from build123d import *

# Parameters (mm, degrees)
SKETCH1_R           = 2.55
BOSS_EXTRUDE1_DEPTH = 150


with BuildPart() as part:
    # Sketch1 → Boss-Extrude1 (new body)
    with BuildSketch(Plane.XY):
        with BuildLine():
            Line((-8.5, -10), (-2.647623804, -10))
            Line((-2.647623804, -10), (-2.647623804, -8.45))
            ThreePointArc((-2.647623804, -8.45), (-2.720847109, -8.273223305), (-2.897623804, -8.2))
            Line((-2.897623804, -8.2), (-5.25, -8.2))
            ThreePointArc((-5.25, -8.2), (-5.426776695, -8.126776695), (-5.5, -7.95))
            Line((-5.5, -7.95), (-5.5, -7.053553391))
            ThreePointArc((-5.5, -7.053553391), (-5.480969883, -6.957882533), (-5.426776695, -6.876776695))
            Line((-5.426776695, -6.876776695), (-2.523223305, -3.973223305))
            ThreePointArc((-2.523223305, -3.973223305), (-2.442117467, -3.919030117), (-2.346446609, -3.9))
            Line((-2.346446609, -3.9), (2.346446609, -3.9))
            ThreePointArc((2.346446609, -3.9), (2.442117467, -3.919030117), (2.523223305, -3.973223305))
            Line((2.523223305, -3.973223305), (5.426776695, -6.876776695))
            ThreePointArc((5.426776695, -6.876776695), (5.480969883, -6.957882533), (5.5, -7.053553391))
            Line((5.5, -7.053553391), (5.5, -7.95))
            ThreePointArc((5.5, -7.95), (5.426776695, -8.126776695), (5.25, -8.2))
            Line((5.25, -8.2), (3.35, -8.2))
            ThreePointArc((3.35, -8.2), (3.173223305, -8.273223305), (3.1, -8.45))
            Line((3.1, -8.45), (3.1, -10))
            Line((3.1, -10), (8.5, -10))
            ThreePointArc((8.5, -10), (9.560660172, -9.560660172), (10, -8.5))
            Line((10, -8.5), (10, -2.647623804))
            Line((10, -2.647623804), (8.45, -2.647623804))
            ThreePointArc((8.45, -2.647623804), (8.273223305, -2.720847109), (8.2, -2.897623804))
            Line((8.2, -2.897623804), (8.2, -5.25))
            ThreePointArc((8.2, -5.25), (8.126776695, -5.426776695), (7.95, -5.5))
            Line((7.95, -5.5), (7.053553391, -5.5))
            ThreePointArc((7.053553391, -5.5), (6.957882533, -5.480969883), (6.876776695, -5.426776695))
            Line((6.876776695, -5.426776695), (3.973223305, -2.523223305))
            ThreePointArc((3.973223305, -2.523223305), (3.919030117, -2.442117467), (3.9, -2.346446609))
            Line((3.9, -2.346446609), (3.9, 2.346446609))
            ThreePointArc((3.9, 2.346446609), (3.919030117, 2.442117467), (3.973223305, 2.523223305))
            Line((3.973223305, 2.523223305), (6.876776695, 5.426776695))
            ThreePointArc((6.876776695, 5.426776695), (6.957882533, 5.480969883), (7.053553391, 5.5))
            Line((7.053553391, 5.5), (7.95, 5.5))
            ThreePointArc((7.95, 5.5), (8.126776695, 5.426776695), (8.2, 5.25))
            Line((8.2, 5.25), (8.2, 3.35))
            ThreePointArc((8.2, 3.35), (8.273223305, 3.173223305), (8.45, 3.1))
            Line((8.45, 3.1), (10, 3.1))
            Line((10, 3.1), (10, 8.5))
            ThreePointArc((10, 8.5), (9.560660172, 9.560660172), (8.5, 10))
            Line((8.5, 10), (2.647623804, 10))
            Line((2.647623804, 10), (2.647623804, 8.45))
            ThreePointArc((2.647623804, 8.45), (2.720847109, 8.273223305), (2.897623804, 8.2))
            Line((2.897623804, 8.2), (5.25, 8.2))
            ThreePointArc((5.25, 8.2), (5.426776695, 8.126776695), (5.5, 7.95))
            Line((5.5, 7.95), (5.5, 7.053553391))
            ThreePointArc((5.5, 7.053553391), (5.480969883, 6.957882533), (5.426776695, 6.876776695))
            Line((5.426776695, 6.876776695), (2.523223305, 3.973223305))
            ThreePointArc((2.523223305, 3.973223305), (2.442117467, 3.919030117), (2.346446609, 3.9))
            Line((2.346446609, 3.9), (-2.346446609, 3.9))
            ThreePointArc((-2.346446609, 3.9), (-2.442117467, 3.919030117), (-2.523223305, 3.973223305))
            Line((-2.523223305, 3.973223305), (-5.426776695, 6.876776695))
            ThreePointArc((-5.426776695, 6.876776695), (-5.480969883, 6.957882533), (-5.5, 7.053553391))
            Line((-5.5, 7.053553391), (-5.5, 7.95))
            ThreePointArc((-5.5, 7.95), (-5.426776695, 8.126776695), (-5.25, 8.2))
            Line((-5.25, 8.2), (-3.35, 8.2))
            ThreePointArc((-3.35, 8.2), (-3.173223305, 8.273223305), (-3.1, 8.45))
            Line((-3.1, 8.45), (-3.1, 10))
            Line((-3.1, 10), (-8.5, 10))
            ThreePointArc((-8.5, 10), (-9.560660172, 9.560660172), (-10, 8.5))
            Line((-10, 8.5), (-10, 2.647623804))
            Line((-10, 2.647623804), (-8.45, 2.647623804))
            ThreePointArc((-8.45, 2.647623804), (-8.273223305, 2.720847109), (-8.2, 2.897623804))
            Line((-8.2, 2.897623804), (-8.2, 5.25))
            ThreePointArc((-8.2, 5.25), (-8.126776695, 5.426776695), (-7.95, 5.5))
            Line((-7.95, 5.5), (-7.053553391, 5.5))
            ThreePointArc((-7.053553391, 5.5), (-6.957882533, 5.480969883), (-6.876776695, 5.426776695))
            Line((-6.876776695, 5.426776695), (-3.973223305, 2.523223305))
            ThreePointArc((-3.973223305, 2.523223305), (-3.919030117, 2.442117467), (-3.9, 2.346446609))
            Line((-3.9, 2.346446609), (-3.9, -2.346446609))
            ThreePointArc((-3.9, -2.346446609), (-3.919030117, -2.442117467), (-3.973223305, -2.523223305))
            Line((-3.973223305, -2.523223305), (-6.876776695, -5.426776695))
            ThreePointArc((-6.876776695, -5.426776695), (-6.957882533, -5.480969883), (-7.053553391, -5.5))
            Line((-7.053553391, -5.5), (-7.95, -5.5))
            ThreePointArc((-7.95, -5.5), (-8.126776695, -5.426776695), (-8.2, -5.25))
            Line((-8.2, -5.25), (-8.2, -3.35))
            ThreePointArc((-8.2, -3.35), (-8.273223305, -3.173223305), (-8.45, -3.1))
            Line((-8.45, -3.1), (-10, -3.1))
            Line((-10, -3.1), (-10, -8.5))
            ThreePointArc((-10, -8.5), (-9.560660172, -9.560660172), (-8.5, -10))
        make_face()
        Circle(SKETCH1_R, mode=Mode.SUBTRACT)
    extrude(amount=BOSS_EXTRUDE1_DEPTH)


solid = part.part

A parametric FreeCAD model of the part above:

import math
import FreeCAD as App
import Part
import Sketcher
Q = App.Units.Quantity

doc = App.newDocument("Part")
body = doc.addObject("PartDesign::Body", "Body")

sketch1 = doc.addObject("Sketcher::SketchObject", "Sketch")
body.addObject(sketch1)
sketch1.AttachmentSupport = (doc.XY_Plane, [""])
sketch1.MapMode = "FlatFace"
sketch1.addGeometry([
    Part.LineSegment(App.Vector(-8.5, -10, 0), App.Vector(-2.65, -10, 0)),
    Part.LineSegment(App.Vector(-2.65, -10, 0), App.Vector(-2.65, -8.45, 0)),
    Part.ArcOfCircle(Part.Circle(App.Vector(-2.9, -8.45, 0), App.Vector(0, 0, 1), 0.25), math.radians(0), math.radians(90)),
    Part.LineSegment(App.Vector(-2.9, -8.2, 0), App.Vector(-5.25, -8.2, 0)),
    Part.ArcOfCircle(Part.Circle(App.Vector(-5.25, -7.95, 0), App.Vector(0, 0, 1), 0.25), math.radians(-180), math.radians(-90)),
    Part.LineSegment(App.Vector(-5.5, -7.95, 0), App.Vector(-5.5, -7.05, 0)),
    Part.ArcOfCircle(Part.Circle(App.Vector(-5.25, -7.05, 0), App.Vector(0, 0, 1), 0.25), math.radians(135), math.radians(180)),
    Part.LineSegment(App.Vector(-5.43, -6.88, 0), App.Vector(-2.52, -3.97, 0)),
    Part.ArcOfCircle(Part.Circle(App.Vector(-2.35, -4.15, 0), App.Vector(0, 0, 1), 0.25), math.radians(90), math.radians(135)),
    Part.LineSegment(App.Vector(-2.35, -3.9, 0), App.Vector(2.35, -3.9, 0)),
    Part.ArcOfCircle(Part.Circle(App.Vector(2.35, -4.15, 0), App.Vector(0, 0, 1), 0.25), math.radians(45), math.radians(90)),
    Part.LineSegment(App.Vector(2.52, -3.97, 0), App.Vector(5.43, -6.88, 0)),
    Part.ArcOfCircle(Part.Circle(App.Vector(5.25, -7.05, 0), App.Vector(0, 0, 1), 0.25), math.radians(0), math.radians(45)),
    Part.LineSegment(App.Vector(5.5, -7.05, 0), App.Vector(5.5, -7.95, 0)),
    Part.ArcOfCircle(Part.Circle(App.Vector(5.25, -7.95, 0), App.Vector(0, 0, 1), 0.25), math.radians(-90), math.radians(0)),
    Part.LineSegment(App.Vector(5.25, -8.2, 0), App.Vector(3.35, -8.2, 0)),
    Part.ArcOfCircle(Part.Circle(App.Vector(3.35, -8.45, 0), App.Vector(0, 0, 1), 0.25), math.radians(90), math.radians(180)),
    Part.LineSegment(App.Vector(3.1, -8.45, 0), App.Vector(3.1, -10, 0)),
    Part.LineSegment(App.Vector(3.1, -10, 0), App.Vector(8.5, -10, 0)),
    Part.ArcOfCircle(Part.Circle(App.Vector(8.5, -8.5, 0), App.Vector(0, 0, 1), 1.5), math.radians(-90), math.radians(0)),
    Part.LineSegment(App.Vector(10, -8.5, 0), App.Vector(10, -2.65, 0)),
    Part.LineSegment(App.Vector(10, -2.65, 0), App.Vector(8.45, -2.65, 0)),
    Part.ArcOfCircle(Part.Circle(App.Vector(8.45, -2.9, 0), App.Vector(0, 0, 1), 0.25), math.radians(90), math.radians(180)),
    Part.LineSegment(App.Vector(8.2, -2.9, 0), App.Vector(8.2, -5.25, 0)),
    Part.ArcOfCircle(Part.Circle(App.Vector(7.95, -5.25, 0), App.Vector(0, 0, 1), 0.25), math.radians(-90), math.radians(0)),
    Part.LineSegment(App.Vector(7.95, -5.5, 0), App.Vector(7.05, -5.5, 0)),
    Part.ArcOfCircle(Part.Circle(App.Vector(7.05, -5.25, 0), App.Vector(0, 0, 1), 0.25), math.radians(-135), math.radians(-90)),
    Part.LineSegment(App.Vector(6.88, -5.43, 0), App.Vector(3.97, -2.52, 0)),
    Part.ArcOfCircle(Part.Circle(App.Vector(4.15, -2.35, 0), App.Vector(0, 0, 1), 0.25), math.radians(-180), math.radians(-135)),
    Part.LineSegment(App.Vector(3.9, -2.35, 0), App.Vector(3.9, 2.35, 0)),
    Part.ArcOfCircle(Part.Circle(App.Vector(4.15, 2.35, 0), App.Vector(0, 0, 1), 0.25), math.radians(135), math.radians(180)),
    Part.LineSegment(App.Vector(3.97, 2.52, 0), App.Vector(6.88, 5.43, 0)),
    Part.ArcOfCircle(Part.Circle(App.Vector(7.05, 5.25, 0), App.Vector(0, 0, 1), 0.25), math.radians(90), math.radians(135)),
    Part.LineSegment(App.Vector(7.05, 5.5, 0), App.Vector(7.95, 5.5, 0)),
    Part.ArcOfCircle(Part.Circle(App.Vector(7.95, 5.25, 0), App.Vector(0, 0, 1), 0.25), math.radians(0), math.radians(90)),
    Part.LineSegment(App.Vector(8.2, 5.25, 0), App.Vector(8.2, 3.35, 0)),
    Part.ArcOfCircle(Part.Circle(App.Vector(8.45, 3.35, 0), App.Vector(0, 0, 1), 0.25), math.radians(-180), math.radians(-90)),
    Part.LineSegment(App.Vector(8.45, 3.1, 0), App.Vector(10, 3.1, 0)),
    Part.LineSegment(App.Vector(10, 3.1, 0), App.Vector(10, 8.5, 0)),
    Part.ArcOfCircle(Part.Circle(App.Vector(8.5, 8.5, 0), App.Vector(0, 0, 1), 1.5), math.radians(0), math.radians(90)),
    Part.LineSegment(App.Vector(8.5, 10, 0), App.Vector(2.65, 10, 0)),
    Part.LineSegment(App.Vector(2.65, 10, 0), App.Vector(2.65, 8.45, 0)),
    Part.ArcOfCircle(Part.Circle(App.Vector(2.9, 8.45, 0), App.Vector(0, 0, 1), 0.25), math.radians(-180), math.radians(-90)),
    Part.LineSegment(App.Vector(2.9, 8.2, 0), App.Vector(5.25, 8.2, 0)),
    Part.ArcOfCircle(Part.Circle(App.Vector(5.25, 7.95, 0), App.Vector(0, 0, 1), 0.25), math.radians(0), math.radians(90)),
    Part.LineSegment(App.Vector(5.5, 7.95, 0), App.Vector(5.5, 7.05, 0)),
    Part.ArcOfCircle(Part.Circle(App.Vector(5.25, 7.05, 0), App.Vector(0, 0, 1), 0.25), math.radians(-45), math.radians(0)),
    Part.LineSegment(App.Vector(5.43, 6.88, 0), App.Vector(2.52, 3.97, 0)),
    Part.ArcOfCircle(Part.Circle(App.Vector(2.35, 4.15, 0), App.Vector(0, 0, 1), 0.25), math.radians(-90), math.radians(-45)),
    Part.LineSegment(App.Vector(2.35, 3.9, 0), App.Vector(-2.35, 3.9, 0)),
    Part.ArcOfCircle(Part.Circle(App.Vector(-2.35, 4.15, 0), App.Vector(0, 0, 1), 0.25), math.radians(-135), math.radians(-90)),
    Part.LineSegment(App.Vector(-2.52, 3.97, 0), App.Vector(-5.43, 6.88, 0)),
    Part.ArcOfCircle(Part.Circle(App.Vector(-5.25, 7.05, 0), App.Vector(0, 0, 1), 0.25), math.radians(-180), math.radians(-135)),
    Part.LineSegment(App.Vector(-5.5, 7.05, 0), App.Vector(-5.5, 7.95, 0)),
    Part.ArcOfCircle(Part.Circle(App.Vector(-5.25, 7.95, 0), App.Vector(0, 0, 1), 0.25), math.radians(90), math.radians(180)),
    Part.LineSegment(App.Vector(-5.25, 8.2, 0), App.Vector(-3.35, 8.2, 0)),
    Part.ArcOfCircle(Part.Circle(App.Vector(-3.35, 8.45, 0), App.Vector(0, 0, 1), 0.25), math.radians(-90), math.radians(0)),
    Part.LineSegment(App.Vector(-3.1, 8.45, 0), App.Vector(-3.1, 10, 0)),
    Part.LineSegment(App.Vector(-3.1, 10, 0), App.Vector(-8.5, 10, 0)),
    Part.ArcOfCircle(Part.Circle(App.Vector(-8.5, 8.5, 0), App.Vector(0, 0, 1), 1.5), math.radians(90), math.radians(180)),
    Part.LineSegment(App.Vector(-10, 8.5, 0), App.Vector(-10, 2.65, 0)),
    Part.LineSegment(App.Vector(-10, 2.65, 0), App.Vector(-8.45, 2.65, 0)),
    Part.ArcOfCircle(Part.Circle(App.Vector(-8.45, 2.9, 0), App.Vector(0, 0, 1), 0.25), math.radians(-90), math.radians(0)),
    Part.LineSegment(App.Vector(-8.2, 2.9, 0), App.Vector(-8.2, 5.25, 0)),
    Part.ArcOfCircle(Part.Circle(App.Vector(-7.95, 5.25, 0), App.Vector(0, 0, 1), 0.25), math.radians(90), math.radians(180)),
    Part.LineSegment(App.Vector(-7.95, 5.5, 0), App.Vector(-7.05, 5.5, 0)),
    Part.ArcOfCircle(Part.Circle(App.Vector(-7.05, 5.25, 0), App.Vector(0, 0, 1), 0.25), math.radians(45), math.radians(90)),
    Part.LineSegment(App.Vector(-6.88, 5.43, 0), App.Vector(-3.97, 2.52, 0)),
    Part.ArcOfCircle(Part.Circle(App.Vector(-4.15, 2.35, 0), App.Vector(0, 0, 1), 0.25), math.radians(0), math.radians(45)),
    Part.LineSegment(App.Vector(-3.9, 2.35, 0), App.Vector(-3.9, -2.35, 0)),
    Part.ArcOfCircle(Part.Circle(App.Vector(-4.15, -2.35, 0), App.Vector(0, 0, 1), 0.25), math.radians(-45), math.radians(0)),
    Part.LineSegment(App.Vector(-3.97, -2.52, 0), App.Vector(-6.88, -5.43, 0)),
    Part.ArcOfCircle(Part.Circle(App.Vector(-7.05, -5.25, 0), App.Vector(0, 0, 1), 0.25), math.radians(-90), math.radians(-45)),
    Part.LineSegment(App.Vector(-7.05, -5.5, 0), App.Vector(-7.95, -5.5, 0)),
    Part.ArcOfCircle(Part.Circle(App.Vector(-7.95, -5.25, 0), App.Vector(0, 0, 1), 0.25), math.radians(-180), math.radians(-90)),
    Part.LineSegment(App.Vector(-8.2, -5.25, 0), App.Vector(-8.2, -3.35, 0)),
    Part.ArcOfCircle(Part.Circle(App.Vector(-8.45, -3.35, 0), App.Vector(0, 0, 1), 0.25), math.radians(0), math.radians(90)),
    Part.LineSegment(App.Vector(-8.45, -3.1, 0), App.Vector(-10, -3.1, 0)),
    Part.LineSegment(App.Vector(-10, -3.1, 0), App.Vector(-10, -8.5, 0)),
    Part.ArcOfCircle(Part.Circle(App.Vector(-8.5, -8.5, 0), App.Vector(0, 0, 1), 1.5), math.radians(180), math.radians(270)),
    Part.Circle(App.Vector(0, 0, 0), App.Vector(0, 0, 1), 2.55),
], False)
sketch1.addConstraint([
    Sketcher.Constraint("Coincident", 0, 2, 1, 1),
    Sketcher.Constraint("Tangent", 1, 2, 2, 1),
    Sketcher.Constraint("Tangent", 2, 2, 3, 1),
    Sketcher.Constraint("Tangent", 3, 2, 4, 2),
    Sketcher.Constraint("Tangent", 4, 1, 5, 1),
    Sketcher.Constraint("Tangent", 5, 2, 6, 2),
    Sketcher.Constraint("Tangent", 6, 1, 7, 1),
    Sketcher.Constraint("Tangent", 7, 2, 8, 2),
    Sketcher.Constraint("Tangent", 8, 1, 9, 1),
    Sketcher.Constraint("Tangent", 9, 2, 10, 2),
    Sketcher.Constraint("Tangent", 10, 1, 11, 1),
    Sketcher.Constraint("Tangent", 11, 2, 12, 2),
    Sketcher.Constraint("Tangent", 12, 1, 13, 1),
    Sketcher.Constraint("Tangent", 13, 2, 14, 2),
    Sketcher.Constraint("Tangent", 14, 1, 15, 1),
    Sketcher.Constraint("Tangent", 15, 2, 16, 1),
    Sketcher.Constraint("Tangent", 16, 2, 17, 1),
    Sketcher.Constraint("Coincident", 17, 2, 18, 1),
    Sketcher.Constraint("Tangent", 18, 2, 19, 1),
    Sketcher.Constraint("Tangent", 19, 2, 20, 1),
    Sketcher.Constraint("Coincident", 20, 2, 21, 1),
    Sketcher.Constraint("Tangent", 21, 2, 22, 1),
    Sketcher.Constraint("Tangent", 22, 2, 23, 1),
    Sketcher.Constraint("Tangent", 23, 2, 24, 2),
    Sketcher.Constraint("Tangent", 24, 1, 25, 1),
    Sketcher.Constraint("Tangent", 25, 2, 26, 2),
    Sketcher.Constraint("Tangent", 26, 1, 27, 1),
    Sketcher.Constraint("Tangent", 27, 2, 28, 2),
    Sketcher.Constraint("Tangent", 28, 1, 29, 1),
    Sketcher.Constraint("Tangent", 29, 2, 30, 2),
    Sketcher.Constraint("Tangent", 30, 1, 31, 1),
    Sketcher.Constraint("Tangent", 31, 2, 32, 2),
    Sketcher.Constraint("Tangent", 32, 1, 33, 1),
    Sketcher.Constraint("Tangent", 33, 2, 34, 2),
    Sketcher.Constraint("Tangent", 34, 1, 35, 1),
    Sketcher.Constraint("Tangent", 35, 2, 36, 1),
    Sketcher.Constraint("Tangent", 36, 2, 37, 1),
    Sketcher.Constraint("Coincident", 37, 2, 38, 1),
    Sketcher.Constraint("Tangent", 38, 2, 39, 1),
    Sketcher.Constraint("Tangent", 39, 2, 40, 1),
    Sketcher.Constraint("Coincident", 40, 2, 41, 1),
    Sketcher.Constraint("Tangent", 41, 2, 42, 1),
    Sketcher.Constraint("Tangent", 42, 2, 43, 1),
    Sketcher.Constraint("Tangent", 43, 2, 44, 2),
    Sketcher.Constraint("Tangent", 44, 1, 45, 1),
    Sketcher.Constraint("Tangent", 45, 2, 46, 2),
    Sketcher.Constraint("Tangent", 46, 1, 47, 1),
    Sketcher.Constraint("Tangent", 47, 2, 48, 2),
    Sketcher.Constraint("Tangent", 48, 1, 49, 1),
    Sketcher.Constraint("Tangent", 49, 2, 50, 2),
    Sketcher.Constraint("Tangent", 50, 1, 51, 1),
    Sketcher.Constraint("Tangent", 51, 2, 52, 2),
    Sketcher.Constraint("Tangent", 52, 1, 53, 1),
    Sketcher.Constraint("Tangent", 53, 2, 54, 2),
    Sketcher.Constraint("Tangent", 54, 1, 55, 1),
    Sketcher.Constraint("Tangent", 55, 2, 56, 1),
    Sketcher.Constraint("Tangent", 56, 2, 57, 1),
    Sketcher.Constraint("Coincident", 57, 2, 58, 1),
    Sketcher.Constraint("Tangent", 58, 2, 59, 1),
    Sketcher.Constraint("Tangent", 59, 2, 60, 1),
    Sketcher.Constraint("Coincident", 60, 2, 61, 1),
    Sketcher.Constraint("Tangent", 61, 2, 62, 1),
    Sketcher.Constraint("Tangent", 62, 2, 63, 1),
    Sketcher.Constraint("Tangent", 63, 2, 64, 2),
    Sketcher.Constraint("Tangent", 64, 1, 65, 1),
    Sketcher.Constraint("Tangent", 65, 2, 66, 2),
    Sketcher.Constraint("Tangent", 66, 1, 67, 1),
    Sketcher.Constraint("Tangent", 67, 2, 68, 2),
    Sketcher.Constraint("Tangent", 68, 1, 69, 1),
    Sketcher.Constraint("Tangent", 69, 2, 70, 2),
    Sketcher.Constraint("Tangent", 70, 1, 71, 1),
    Sketcher.Constraint("Tangent", 71, 2, 72, 2),
    Sketcher.Constraint("Tangent", 72, 1, 73, 1),
    Sketcher.Constraint("Tangent", 73, 2, 74, 2),
    Sketcher.Constraint("Tangent", 74, 1, 75, 1),
    Sketcher.Constraint("Tangent", 75, 2, 76, 1),
    Sketcher.Constraint("Tangent", 76, 2, 77, 1),
    Sketcher.Constraint("Coincident", 77, 2, 78, 1),
    Sketcher.Constraint("Tangent", 78, 2, 79, 1),
    Sketcher.Constraint("Tangent", 79, 2, 0, 1),
    Sketcher.Constraint("Horizontal", 0),
    Sketcher.Constraint("Vertical", 1),
    Sketcher.Constraint("Horizontal", 3),
    Sketcher.Constraint("Vertical", 5),
    Sketcher.Constraint("Horizontal", 9),
    Sketcher.Constraint("Vertical", 13),
    Sketcher.Constraint("Horizontal", 15),
    Sketcher.Constraint("Vertical", 17),
    Sketcher.Constraint("Horizontal", 18),
    Sketcher.Constraint("Vertical", 20),
    Sketcher.Constraint("Horizontal", 21),
    Sketcher.Constraint("Vertical", 23),
    Sketcher.Constraint("Horizontal", 25),
    Sketcher.Constraint("Vertical", 29),
    Sketcher.Constraint("Horizontal", 33),
    Sketcher.Constraint("Vertical", 35),
    Sketcher.Constraint("Horizontal", 37),
    Sketcher.Constraint("Vertical", 38),
    Sketcher.Constraint("Horizontal", 40),
    Sketcher.Constraint("Vertical", 41),
    Sketcher.Constraint("Horizontal", 43),
    Sketcher.Constraint("Vertical", 45),
    Sketcher.Constraint("Horizontal", 49),
    Sketcher.Constraint("Vertical", 53),
    Sketcher.Constraint("Horizontal", 55),
    Sketcher.Constraint("Vertical", 57),
    Sketcher.Constraint("Horizontal", 58),
    Sketcher.Constraint("Vertical", 60),
    Sketcher.Constraint("Horizontal", 61),
    Sketcher.Constraint("Vertical", 63),
    Sketcher.Constraint("Horizontal", 65),
    Sketcher.Constraint("Vertical", 69),
    Sketcher.Constraint("Horizontal", 73),
    Sketcher.Constraint("Vertical", 75),
    Sketcher.Constraint("Horizontal", 77),
    Sketcher.Constraint("Vertical", 78),
    Sketcher.Constraint("Coincident", 80, 3, -1, 1),
    Sketcher.Constraint("Equal", 2, 4),
    Sketcher.Constraint("Equal", 4, 6),
    Sketcher.Constraint("Equal", 6, 8),
    Sketcher.Constraint("Equal", 8, 10),
    Sketcher.Constraint("Equal", 10, 12),
    Sketcher.Constraint("Equal", 12, 14),
    Sketcher.Constraint("Equal", 14, 16),
    Sketcher.Constraint("Equal", 16, 22),
    Sketcher.Constraint("Equal", 22, 24),
    Sketcher.Constraint("Equal", 24, 26),
    Sketcher.Constraint("Equal", 26, 28),
    Sketcher.Constraint("Equal", 28, 30),
    Sketcher.Constraint("Equal", 30, 32),
    Sketcher.Constraint("Equal", 32, 34),
    Sketcher.Constraint("Equal", 34, 36),
    Sketcher.Constraint("Equal", 19, 39),
    Sketcher.Constraint("Equal", 36, 42),
    Sketcher.Constraint("Equal", 42, 44),
    Sketcher.Constraint("Equal", 44, 46),
    Sketcher.Constraint("Equal", 46, 48),
    Sketcher.Constraint("Equal", 48, 50),
    Sketcher.Constraint("Equal", 50, 52),
    Sketcher.Constraint("Equal", 52, 54),
    Sketcher.Constraint("Equal", 54, 56),
    Sketcher.Constraint("Equal", 39, 59),
    Sketcher.Constraint("Equal", 56, 62),
    Sketcher.Constraint("Equal", 62, 64),
    Sketcher.Constraint("Equal", 64, 66),
    Sketcher.Constraint("Equal", 66, 68),
    Sketcher.Constraint("Equal", 68, 70),
    Sketcher.Constraint("Equal", 70, 72),
    Sketcher.Constraint("Equal", 72, 74),
    Sketcher.Constraint("Equal", 74, 76),
    Sketcher.Constraint("Equal", 59, 79),
    Sketcher.Constraint("Symmetric", 2, 3, 42, 3, -1, 1),
    Sketcher.Constraint("Symmetric", 6, 3, 46, 3, -1, 1),
    Sketcher.Constraint("Symmetric", 8, 3, 48, 3, -1, 1),
    Sketcher.Constraint("Symmetric", 12, 3, 52, 3, -1, 1),
    Sketcher.Constraint("Symmetric", 16, 3, 56, 3, -1, 1),
    Sketcher.Constraint("Symmetric", 19, 3, 59, 3, -1, 1),
    Sketcher.Constraint("Symmetric", 22, 3, 62, 3, -1, 1),
    Sketcher.Constraint("Symmetric", 26, 3, 66, 3, -1, 1),
    Sketcher.Constraint("Symmetric", 28, 3, 68, 3, -1, 1),
    Sketcher.Constraint("Symmetric", 32, 3, 72, 3, -1, 1),
    Sketcher.Constraint("Symmetric", 36, 3, 76, 3, -1, 1),
    Sketcher.Constraint("Symmetric", 39, 3, 79, 3, -1, 1),
    Sketcher.Constraint("Symmetric", 6, 3, 12, 3, -2),
    Sketcher.Constraint("Symmetric", 39, 3, 59, 3, -2),
    Sketcher.Constraint("Symmetric", 34, 3, 64, 3, -2),
    Sketcher.Constraint("Symmetric", 31, 2, 66, 1, -2),
    Sketcher.Constraint("Perpendicular", 7, 11),
    Sketcher.Constraint("Parallel", 11, 27),
    Sketcher.Constraint("Perpendicular", 27, 31),
    Sketcher.Constraint("Perpendicular", 47, 51),
    Sketcher.Constraint("Perpendicular", 67, 71),
    Sketcher.Constraint("Horizontal", 4, 3, 14, 3),
    Sketcher.Constraint("Equal", 77, 1),
    Sketcher.Constraint("Equal", 73, 5),
    Sketcher.Constraint("Equal", 40, 20),
    Sketcher.Constraint("Equal", 43, 23),
    Sketcher.Constraint("Equal", 49, 29),
    Sketcher.Constraint("Equal", 55, 35),
    Sketcher.Constraint("Equal", 11, 27),
    Sketcher.Constraint("Diameter", 80, Q("5.1 mm")),
    Sketcher.Constraint("Radius", 19, Q("1.5 mm")),
    Sketcher.Constraint("Radius", 2, Q("0.25 mm")),
    Sketcher.Constraint("DistanceX", 15, 2, 15, 1, Q("1.9 mm")),
    Sketcher.Constraint("DistanceX", 18, 1, 18, 2, Q("5.4 mm")),
    Sketcher.Constraint("DistanceY", 0, 2, -1, 1, Q("10 mm")),
    Sketcher.Constraint("DistanceX", 21, 2, 21, 1, Q("1.55 mm")),
    Sketcher.Constraint("DistanceY", 8, 1, -1, 1, Q("3.9 mm")),
    Sketcher.Constraint("DistanceX", 0, 1, 0, 2, Q("5.852376 mm")),
    Sketcher.Constraint("DistanceX", 9, 1, 9, 2, Q("4.692893 mm")),
])
pad1 = doc.addObject("PartDesign::Pad", "Pad")
body.addObject(pad1)
pad1.Profile = sketch1
pad1.Length = 150

doc.recompute()
